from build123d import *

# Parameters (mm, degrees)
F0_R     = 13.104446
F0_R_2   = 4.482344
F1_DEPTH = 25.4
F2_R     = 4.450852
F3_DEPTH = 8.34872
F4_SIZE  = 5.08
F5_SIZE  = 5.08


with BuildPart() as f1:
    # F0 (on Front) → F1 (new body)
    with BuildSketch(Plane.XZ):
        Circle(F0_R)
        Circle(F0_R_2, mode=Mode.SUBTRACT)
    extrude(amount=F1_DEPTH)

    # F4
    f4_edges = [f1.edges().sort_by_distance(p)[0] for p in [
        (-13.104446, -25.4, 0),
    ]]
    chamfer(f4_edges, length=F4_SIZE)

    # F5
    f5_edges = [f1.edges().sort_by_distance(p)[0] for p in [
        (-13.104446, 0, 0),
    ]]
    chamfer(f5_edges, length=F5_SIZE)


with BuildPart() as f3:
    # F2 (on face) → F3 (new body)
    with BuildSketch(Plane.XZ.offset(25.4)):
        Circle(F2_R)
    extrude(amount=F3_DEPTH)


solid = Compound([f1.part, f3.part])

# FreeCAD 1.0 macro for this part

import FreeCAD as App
import Part
import Sketcher
from FreeCAD import Vector
Q = App.Units.Quantity


def edges_at(feature, points):
    """Names of the edges that pass closest to the given points."""
    edges = feature.Shape.Edges
    near = lambda p: min(range(len(edges)), key=lambda i: edges[i].distToShape(Part.Vertex(*p))[0])
    return sorted({f"Edge{near(p) + 1}" for p in points})

doc = App.newDocument("Part")
body = doc.addObject("PartDesign::Body", "Body")

sketch1 = doc.addObject("Sketcher::SketchObject", "Sketch")
body.addObject(sketch1)
sketch1.AttachmentSupport = (doc.XZ_Plane, [""])
sketch1.MapMode = "FlatFace"
sketch1.addGeometry(Part.Circle(Vector(0, 0, 0), Vector(0, 0, 1), 13.104446), False)
sketch1.addGeometry(Part.Circle(Vector(0, 0, 0), Vector(0, 0, 1), 4.482344), False)
sketch1.addConstraint(Sketcher.Constraint("Coincident", 0, 3, -1, 1))
sketch1.addConstraint(Sketcher.Constraint("Coincident", 1, 3, -1, 1))
sketch1.addConstraint(Sketcher.Constraint("Diameter", 0, 26.208892))
sketch1.addConstraint(Sketcher.Constraint("Diameter", 1, 8.964688))
pad1 = doc.addObject("PartDesign::Pad", "Pad")
body.addObject(pad1)
pad1.Profile = sketch1
pad1.Length = Q("1 in")
doc.recompute()

chamfer = doc.addObject("PartDesign::Chamfer", "Chamfer")
body.addObject(chamfer)
chamfer.Base = (pad1, edges_at(pad1, [(-13.104, -25.4, 0)]))
chamfer.Size = Q("0.2 in")
doc.recompute()

chamfer2 = doc.addObject("PartDesign::Chamfer", "Chamfer001")
body.addObject(chamfer2)
chamfer2.Base = (chamfer, edges_at(chamfer, [(-13.104, 0, 0)]))
chamfer2.Size = Q("0.2 in")
body2 = doc.addObject("PartDesign::Body", "Body001")

sketch2 = doc.addObject("Sketcher::SketchObject", "Sketch001")
body2.addObject(sketch2)
sketch2.AttachmentSupport = (doc.getObject("XZ_Plane001"), [""])
sketch2.MapMode = "FlatFace"
sketch2.AttachmentOffset = App.Placement(Vector(0, 0, 1 * 25.4), App.Rotation())
sketch2.addGeometry(Part.Circle(Vector(0, 0, 0), Vector(0, 0, 1), 4.450852), False)
sketch2.addConstraint(Sketcher.Constraint("Coincident", 0, 3, -1, 1))
sketch2.addConstraint(Sketcher.Constraint("Diameter", 0, 8.901704))
pad2 = doc.addObject("PartDesign::Pad", "Pad001")
body2.addObject(pad2)
pad2.Profile = sketch2
pad2.Length = 8.34872

doc.recompute()
